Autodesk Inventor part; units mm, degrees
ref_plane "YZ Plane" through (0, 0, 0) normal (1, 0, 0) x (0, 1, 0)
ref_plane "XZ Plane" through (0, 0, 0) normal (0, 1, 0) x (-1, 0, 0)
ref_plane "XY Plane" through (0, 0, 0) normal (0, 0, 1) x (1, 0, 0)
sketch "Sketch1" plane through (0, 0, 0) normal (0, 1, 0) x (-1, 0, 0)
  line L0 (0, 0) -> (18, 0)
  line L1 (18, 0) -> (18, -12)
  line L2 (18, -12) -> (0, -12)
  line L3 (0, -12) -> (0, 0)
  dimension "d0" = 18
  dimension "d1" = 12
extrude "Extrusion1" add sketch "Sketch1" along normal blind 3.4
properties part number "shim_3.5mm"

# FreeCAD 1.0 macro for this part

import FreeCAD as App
import Part
import Sketcher

V = App.Vector


def add_polygon(sketch, points):
    """Adds a closed chain of lines whose ends are joined by coincident constraints."""
    first, n = sketch.GeometryCount, len(points)
    for a, b in zip(points, points[1:] + points[:1]):
        sketch.addGeometry(Part.LineSegment(App.Vector(*a, 0), App.Vector(*b, 0)), False)
    for i in range(n):
        sketch.addConstraint(Sketcher.Constraint("Coincident", first + i, 2, first + (i + 1) % n, 1))

doc = App.newDocument("Part")
body = doc.addObject("PartDesign::Body", "Body")

sketch1 = body.newObject("Sketcher::SketchObject", "Sketch")
sketch1.AttachmentSupport = (doc.getObject("XZ_Plane"), [""])
sketch1.MapMode = "FlatFace"
add_polygon(sketch1, [(-18, 0), (0, 0), (0, -12), (-18, -12)])
sketch1.addConstraint([
    Sketcher.Constraint("Horizontal", 0),
    Sketcher.Constraint("Vertical", 1),
    Sketcher.Constraint("Horizontal", 2),
    Sketcher.Constraint("Vertical", 3),
    Sketcher.Constraint("Coincident", 0, 2, -1, 1),
    Sketcher.Constraint("DistanceX", 0, 1, 0, 2, 18.0),
    Sketcher.Constraint("DistanceY", 1, 2, 1, 1, 12.0),
])
pad1 = body.newObject("PartDesign::Pad", "Pad")
pad1.Profile = sketch1
pad1.Length = 3.4
pad1.Reversed = True

doc.recompute()
